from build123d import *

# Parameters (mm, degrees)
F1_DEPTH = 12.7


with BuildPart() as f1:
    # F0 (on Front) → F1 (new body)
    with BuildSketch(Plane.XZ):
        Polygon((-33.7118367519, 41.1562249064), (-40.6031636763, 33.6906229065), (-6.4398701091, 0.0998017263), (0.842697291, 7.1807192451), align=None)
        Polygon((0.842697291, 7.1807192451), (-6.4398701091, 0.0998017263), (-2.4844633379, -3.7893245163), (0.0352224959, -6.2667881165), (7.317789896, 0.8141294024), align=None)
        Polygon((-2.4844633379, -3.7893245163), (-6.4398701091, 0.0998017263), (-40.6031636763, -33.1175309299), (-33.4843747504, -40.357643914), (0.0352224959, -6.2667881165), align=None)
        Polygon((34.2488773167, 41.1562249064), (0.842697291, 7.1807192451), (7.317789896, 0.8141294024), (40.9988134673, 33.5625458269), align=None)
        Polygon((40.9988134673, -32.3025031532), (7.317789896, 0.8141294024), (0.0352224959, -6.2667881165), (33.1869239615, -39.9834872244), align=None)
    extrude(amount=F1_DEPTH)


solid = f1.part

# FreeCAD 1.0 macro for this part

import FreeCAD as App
import Part
import Sketcher
from FreeCAD import Vector
Q = App.Units.Quantity


def add_polygon(sketch, points):
    """Adds a closed chain of lines whose ends are joined by coincident constraints."""
    first, n = sketch.GeometryCount, len(points)
    for a, b in zip(points, points[1:] + points[:1]):
        sketch.addGeometry(Part.LineSegment(App.Vector(*a, 0), App.Vector(*b, 0)), False)
    for i in range(n):
        sketch.addConstraint(Sketcher.Constraint("Coincident", first + i, 2, first + (i + 1) % n, 1))

doc = App.newDocument("Part")
params = doc.addObject("Spreadsheet::Sheet", "Params")
for row, (alias, value) in enumerate([
    ("sketch1_length", "0.4 in"),
    ("pad1_length", "0.5 in"),
], start=1):
    params.set(f"A{row}", alias)
    params.set(f"B{row}", "=" + value)
    params.setAlias(f"B{row}", alias)

body = doc.addObject("PartDesign::Body", "Body")

# Sketch on XZ plane
sketch1 = body.newObject("Sketcher::SketchObject", "Sketch")
sketch1.AttachmentSupport = (doc.getObject("XZ_Plane"), [""])
sketch1.MapMode = "FlatFace"
add_polygon(sketch1, [(-33.711837, 41.156225), (-40.603164, 33.690623), (-6.43987, 0.099802), (-40.603164, -33.117531), (-33.484375, -40.357644), (0.035222, -6.266788), (33.186924, -39.983487), (40.998813, -32.302503), (7.31779, 0.814129), (40.998813, 33.562546), (34.248877, 41.156225), (0.842697, 7.180719)])  # lines 0-11
sketch1.addConstraint(Sketcher.Constraint("Perpendicular", 1, 4))
sketch1.addConstraint(Sketcher.Constraint("Parallel", 3, 5))
sketch1.addConstraint(Sketcher.Constraint("Perpendicular", 5, 6))
sketch1.addConstraint(Sketcher.Constraint("Perpendicular", 4, 7))
sketch1.addConstraint(Sketcher.Constraint("Parallel", 2, 8))
sketch1.addConstraint(Sketcher.Constraint("Perpendicular", 7, 10))
sketch1.addConstraint(Sketcher.Constraint("Perpendicular", 10, 11))
sketch1.addConstraint(Sketcher.Constraint("Horizontal", 9, 2, 11, 2))
sketch1.addConstraint(Sketcher.Constraint("Vertical", 0, 2, 2, 2))
sketch1.addConstraint(Sketcher.Constraint("Vertical", 6, 2, 8, 2))
sketch1.addConstraint(Sketcher.Constraint("Equal", 0, 9))
sketch1.addConstraint(Sketcher.Constraint("Distance", 0, Q("0.4 in")))
sketch1.addConstraint(Sketcher.Constraint("DistanceY", -1, 1, 1, 2, 0.099802))
sketch1.addConstraint(Sketcher.Constraint("DistanceX", 4, 2, 5, 2, 33.151701))
sketch1.addConstraint(Sketcher.Constraint("DistanceY", 5, 2, 4, 2, 33.716699))
sketch1.addConstraint(Sketcher.Constraint("DistanceX", 3, 2, 5, 2, 66.671299))
sketch1.addConstraint(Sketcher.Constraint("DistanceY", 0, 2, 11, 2, 7.465602))
sketch1.addConstraint(Sketcher.Constraint("Distance", 3, 10.153639))
sketch1.addConstraint(Sketcher.Constraint("Distance", 7, 47.234762))
sketch1.addConstraint(Sketcher.Constraint("DistanceX", 1, 2, -1, 1, 6.43987))
sketch1.addConstraint(Sketcher.Constraint("DistanceY", 2, 2, -1, 1, 33.117531))
sketch1.addConstraint(Sketcher.Constraint("DistanceY", 4, 2, -1, 1, 6.266788))
sketch1.addConstraint(Sketcher.Constraint("DistanceX", -1, 1, 7, 2, 7.31779))
sketch1.addConstraint(Sketcher.Constraint("DistanceY", -1, 1, 7, 2, 0.814129))
sketch1.setExpression("Constraints[23]", "Params.sketch1_length")
pad1 = body.newObject("PartDesign::Pad", "Pad")
pad1.Profile = sketch1
pad1.setExpression("Length", "Params.pad1_length")

doc.recompute()
